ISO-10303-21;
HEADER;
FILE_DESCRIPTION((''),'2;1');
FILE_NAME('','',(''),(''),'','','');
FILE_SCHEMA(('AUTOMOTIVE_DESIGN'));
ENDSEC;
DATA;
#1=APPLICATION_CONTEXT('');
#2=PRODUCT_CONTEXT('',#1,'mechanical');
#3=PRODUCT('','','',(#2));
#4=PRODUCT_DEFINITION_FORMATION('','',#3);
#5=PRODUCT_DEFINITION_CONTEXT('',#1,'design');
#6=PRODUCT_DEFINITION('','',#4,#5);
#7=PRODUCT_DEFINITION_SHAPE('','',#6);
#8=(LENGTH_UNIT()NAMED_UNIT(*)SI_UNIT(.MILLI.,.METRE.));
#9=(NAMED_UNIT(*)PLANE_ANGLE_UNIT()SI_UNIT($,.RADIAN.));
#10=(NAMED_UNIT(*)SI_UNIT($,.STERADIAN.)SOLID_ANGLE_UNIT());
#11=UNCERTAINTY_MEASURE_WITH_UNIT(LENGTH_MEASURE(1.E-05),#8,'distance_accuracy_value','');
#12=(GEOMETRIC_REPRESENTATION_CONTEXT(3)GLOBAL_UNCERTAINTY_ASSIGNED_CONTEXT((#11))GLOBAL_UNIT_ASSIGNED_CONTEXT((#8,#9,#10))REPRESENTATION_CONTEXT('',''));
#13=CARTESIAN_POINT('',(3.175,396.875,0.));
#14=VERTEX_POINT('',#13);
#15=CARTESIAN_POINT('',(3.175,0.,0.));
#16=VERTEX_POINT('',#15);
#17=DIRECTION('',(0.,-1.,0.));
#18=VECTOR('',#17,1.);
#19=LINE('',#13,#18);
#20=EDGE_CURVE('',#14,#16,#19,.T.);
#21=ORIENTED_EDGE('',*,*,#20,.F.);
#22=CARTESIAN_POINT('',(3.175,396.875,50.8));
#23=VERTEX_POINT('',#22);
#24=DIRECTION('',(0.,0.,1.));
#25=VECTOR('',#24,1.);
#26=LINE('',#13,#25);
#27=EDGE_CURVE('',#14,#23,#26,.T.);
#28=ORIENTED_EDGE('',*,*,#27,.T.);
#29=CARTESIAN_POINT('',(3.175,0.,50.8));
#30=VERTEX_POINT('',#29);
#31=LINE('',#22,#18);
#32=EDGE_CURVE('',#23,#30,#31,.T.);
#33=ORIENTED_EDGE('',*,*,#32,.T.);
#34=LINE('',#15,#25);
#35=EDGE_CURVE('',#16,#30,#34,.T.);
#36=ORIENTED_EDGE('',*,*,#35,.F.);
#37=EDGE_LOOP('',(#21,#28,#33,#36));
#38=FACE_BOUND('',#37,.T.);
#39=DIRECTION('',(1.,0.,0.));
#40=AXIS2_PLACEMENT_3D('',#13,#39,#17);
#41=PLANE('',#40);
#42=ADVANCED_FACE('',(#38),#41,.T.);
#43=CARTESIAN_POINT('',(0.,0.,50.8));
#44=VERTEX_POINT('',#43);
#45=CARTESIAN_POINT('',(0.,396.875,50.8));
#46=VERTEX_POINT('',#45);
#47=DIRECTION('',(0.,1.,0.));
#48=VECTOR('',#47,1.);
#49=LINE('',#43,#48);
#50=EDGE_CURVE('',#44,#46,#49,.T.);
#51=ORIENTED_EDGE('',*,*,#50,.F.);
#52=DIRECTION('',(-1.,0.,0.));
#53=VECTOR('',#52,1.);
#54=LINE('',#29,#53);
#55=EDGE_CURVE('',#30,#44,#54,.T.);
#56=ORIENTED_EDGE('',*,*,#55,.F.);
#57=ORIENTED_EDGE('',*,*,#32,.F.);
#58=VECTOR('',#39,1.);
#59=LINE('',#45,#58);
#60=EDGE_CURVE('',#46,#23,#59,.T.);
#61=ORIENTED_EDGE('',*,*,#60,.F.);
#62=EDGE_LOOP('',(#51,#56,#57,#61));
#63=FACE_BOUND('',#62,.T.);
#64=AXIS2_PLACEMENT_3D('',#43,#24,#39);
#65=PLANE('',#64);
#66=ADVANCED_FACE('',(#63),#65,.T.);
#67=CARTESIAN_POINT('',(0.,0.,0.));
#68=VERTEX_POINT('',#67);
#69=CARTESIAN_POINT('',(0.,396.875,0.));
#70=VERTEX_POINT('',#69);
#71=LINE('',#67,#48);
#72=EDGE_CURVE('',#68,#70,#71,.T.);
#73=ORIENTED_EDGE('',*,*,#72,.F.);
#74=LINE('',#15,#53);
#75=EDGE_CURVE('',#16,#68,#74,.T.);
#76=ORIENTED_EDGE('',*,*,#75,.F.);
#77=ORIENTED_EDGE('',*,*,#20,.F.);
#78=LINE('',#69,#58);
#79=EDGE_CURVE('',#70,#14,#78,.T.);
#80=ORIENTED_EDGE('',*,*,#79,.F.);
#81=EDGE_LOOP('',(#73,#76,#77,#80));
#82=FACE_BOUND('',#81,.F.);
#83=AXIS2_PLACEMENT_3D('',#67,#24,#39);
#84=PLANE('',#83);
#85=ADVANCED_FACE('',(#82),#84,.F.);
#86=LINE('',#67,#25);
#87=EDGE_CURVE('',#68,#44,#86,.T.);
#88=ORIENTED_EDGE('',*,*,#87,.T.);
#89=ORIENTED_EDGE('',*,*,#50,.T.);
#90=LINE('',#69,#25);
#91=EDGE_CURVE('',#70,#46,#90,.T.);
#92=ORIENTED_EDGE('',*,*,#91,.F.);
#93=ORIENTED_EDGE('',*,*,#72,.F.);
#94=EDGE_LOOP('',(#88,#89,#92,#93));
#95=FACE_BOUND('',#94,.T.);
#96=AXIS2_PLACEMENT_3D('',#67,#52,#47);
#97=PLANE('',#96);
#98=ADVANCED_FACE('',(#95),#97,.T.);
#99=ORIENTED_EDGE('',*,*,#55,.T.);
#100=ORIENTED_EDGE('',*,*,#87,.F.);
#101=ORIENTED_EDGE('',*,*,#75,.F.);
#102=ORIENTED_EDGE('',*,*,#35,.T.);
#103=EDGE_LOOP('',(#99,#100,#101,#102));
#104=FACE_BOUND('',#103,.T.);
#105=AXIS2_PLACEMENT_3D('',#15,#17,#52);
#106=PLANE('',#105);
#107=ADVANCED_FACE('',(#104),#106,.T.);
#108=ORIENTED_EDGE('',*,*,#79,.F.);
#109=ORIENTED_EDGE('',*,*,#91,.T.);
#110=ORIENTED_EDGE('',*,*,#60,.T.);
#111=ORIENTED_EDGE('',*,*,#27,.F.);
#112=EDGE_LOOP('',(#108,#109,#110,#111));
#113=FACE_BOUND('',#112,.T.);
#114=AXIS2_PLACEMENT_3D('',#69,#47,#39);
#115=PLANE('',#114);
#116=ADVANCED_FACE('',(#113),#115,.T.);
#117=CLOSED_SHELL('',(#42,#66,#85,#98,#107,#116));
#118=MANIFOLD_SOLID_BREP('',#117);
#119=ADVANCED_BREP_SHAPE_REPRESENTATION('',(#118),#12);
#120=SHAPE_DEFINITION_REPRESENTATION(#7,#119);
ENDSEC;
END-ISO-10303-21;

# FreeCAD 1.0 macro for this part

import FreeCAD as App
import Part
import Sketcher

V = App.Vector
Q = App.Units.Quantity

doc = App.newDocument("Part")
body = doc.addObject("PartDesign::Body", "Body")

sketch1 = body.newObject("Sketcher::SketchObject", "Sketch")
sketch1.AttachmentSupport = (doc.getObject("XY_Plane"), [""])
sketch1.MapMode = "FlatFace"
sketch1.addGeometry([
    Part.LineSegment(V(0, 396.9, 0), V(0, 0, 0)),
    Part.LineSegment(V(0, 0, 0), V(3.2, 0, 0)),
    Part.LineSegment(V(3.2, 0, 0), V(3.2, 396.9, 0)),
    Part.LineSegment(V(3.2, 396.9, 0), V(0, 396.9, 0)),
], False)
sketch1.addConstraint([
    Sketcher.Constraint("Coincident", 0, 2, 1, 1),
    Sketcher.Constraint("Coincident", 1, 2, 2, 1),
    Sketcher.Constraint("Coincident", 2, 2, 3, 1),
    Sketcher.Constraint("Coincident", 3, 2, 0, 1),
    Sketcher.Constraint("Vertical", 0),
    Sketcher.Constraint("Horizontal", 1),
    Sketcher.Constraint("Vertical", 2),
    Sketcher.Constraint("Horizontal", 3),
    Sketcher.Constraint("Coincident", 0, 2, -1, 1),
    Sketcher.Constraint("DistanceX", 1, 1, 1, 2, Q("0.125 in")),
    Sketcher.Constraint("DistanceY", 0, 2, 0, 1, Q("15.625 in")),
])
pad1 = body.newObject("PartDesign::Pad", "Pad")
pad1.Profile = sketch1
pad1.Length = Q("2 in")

doc.recompute()
